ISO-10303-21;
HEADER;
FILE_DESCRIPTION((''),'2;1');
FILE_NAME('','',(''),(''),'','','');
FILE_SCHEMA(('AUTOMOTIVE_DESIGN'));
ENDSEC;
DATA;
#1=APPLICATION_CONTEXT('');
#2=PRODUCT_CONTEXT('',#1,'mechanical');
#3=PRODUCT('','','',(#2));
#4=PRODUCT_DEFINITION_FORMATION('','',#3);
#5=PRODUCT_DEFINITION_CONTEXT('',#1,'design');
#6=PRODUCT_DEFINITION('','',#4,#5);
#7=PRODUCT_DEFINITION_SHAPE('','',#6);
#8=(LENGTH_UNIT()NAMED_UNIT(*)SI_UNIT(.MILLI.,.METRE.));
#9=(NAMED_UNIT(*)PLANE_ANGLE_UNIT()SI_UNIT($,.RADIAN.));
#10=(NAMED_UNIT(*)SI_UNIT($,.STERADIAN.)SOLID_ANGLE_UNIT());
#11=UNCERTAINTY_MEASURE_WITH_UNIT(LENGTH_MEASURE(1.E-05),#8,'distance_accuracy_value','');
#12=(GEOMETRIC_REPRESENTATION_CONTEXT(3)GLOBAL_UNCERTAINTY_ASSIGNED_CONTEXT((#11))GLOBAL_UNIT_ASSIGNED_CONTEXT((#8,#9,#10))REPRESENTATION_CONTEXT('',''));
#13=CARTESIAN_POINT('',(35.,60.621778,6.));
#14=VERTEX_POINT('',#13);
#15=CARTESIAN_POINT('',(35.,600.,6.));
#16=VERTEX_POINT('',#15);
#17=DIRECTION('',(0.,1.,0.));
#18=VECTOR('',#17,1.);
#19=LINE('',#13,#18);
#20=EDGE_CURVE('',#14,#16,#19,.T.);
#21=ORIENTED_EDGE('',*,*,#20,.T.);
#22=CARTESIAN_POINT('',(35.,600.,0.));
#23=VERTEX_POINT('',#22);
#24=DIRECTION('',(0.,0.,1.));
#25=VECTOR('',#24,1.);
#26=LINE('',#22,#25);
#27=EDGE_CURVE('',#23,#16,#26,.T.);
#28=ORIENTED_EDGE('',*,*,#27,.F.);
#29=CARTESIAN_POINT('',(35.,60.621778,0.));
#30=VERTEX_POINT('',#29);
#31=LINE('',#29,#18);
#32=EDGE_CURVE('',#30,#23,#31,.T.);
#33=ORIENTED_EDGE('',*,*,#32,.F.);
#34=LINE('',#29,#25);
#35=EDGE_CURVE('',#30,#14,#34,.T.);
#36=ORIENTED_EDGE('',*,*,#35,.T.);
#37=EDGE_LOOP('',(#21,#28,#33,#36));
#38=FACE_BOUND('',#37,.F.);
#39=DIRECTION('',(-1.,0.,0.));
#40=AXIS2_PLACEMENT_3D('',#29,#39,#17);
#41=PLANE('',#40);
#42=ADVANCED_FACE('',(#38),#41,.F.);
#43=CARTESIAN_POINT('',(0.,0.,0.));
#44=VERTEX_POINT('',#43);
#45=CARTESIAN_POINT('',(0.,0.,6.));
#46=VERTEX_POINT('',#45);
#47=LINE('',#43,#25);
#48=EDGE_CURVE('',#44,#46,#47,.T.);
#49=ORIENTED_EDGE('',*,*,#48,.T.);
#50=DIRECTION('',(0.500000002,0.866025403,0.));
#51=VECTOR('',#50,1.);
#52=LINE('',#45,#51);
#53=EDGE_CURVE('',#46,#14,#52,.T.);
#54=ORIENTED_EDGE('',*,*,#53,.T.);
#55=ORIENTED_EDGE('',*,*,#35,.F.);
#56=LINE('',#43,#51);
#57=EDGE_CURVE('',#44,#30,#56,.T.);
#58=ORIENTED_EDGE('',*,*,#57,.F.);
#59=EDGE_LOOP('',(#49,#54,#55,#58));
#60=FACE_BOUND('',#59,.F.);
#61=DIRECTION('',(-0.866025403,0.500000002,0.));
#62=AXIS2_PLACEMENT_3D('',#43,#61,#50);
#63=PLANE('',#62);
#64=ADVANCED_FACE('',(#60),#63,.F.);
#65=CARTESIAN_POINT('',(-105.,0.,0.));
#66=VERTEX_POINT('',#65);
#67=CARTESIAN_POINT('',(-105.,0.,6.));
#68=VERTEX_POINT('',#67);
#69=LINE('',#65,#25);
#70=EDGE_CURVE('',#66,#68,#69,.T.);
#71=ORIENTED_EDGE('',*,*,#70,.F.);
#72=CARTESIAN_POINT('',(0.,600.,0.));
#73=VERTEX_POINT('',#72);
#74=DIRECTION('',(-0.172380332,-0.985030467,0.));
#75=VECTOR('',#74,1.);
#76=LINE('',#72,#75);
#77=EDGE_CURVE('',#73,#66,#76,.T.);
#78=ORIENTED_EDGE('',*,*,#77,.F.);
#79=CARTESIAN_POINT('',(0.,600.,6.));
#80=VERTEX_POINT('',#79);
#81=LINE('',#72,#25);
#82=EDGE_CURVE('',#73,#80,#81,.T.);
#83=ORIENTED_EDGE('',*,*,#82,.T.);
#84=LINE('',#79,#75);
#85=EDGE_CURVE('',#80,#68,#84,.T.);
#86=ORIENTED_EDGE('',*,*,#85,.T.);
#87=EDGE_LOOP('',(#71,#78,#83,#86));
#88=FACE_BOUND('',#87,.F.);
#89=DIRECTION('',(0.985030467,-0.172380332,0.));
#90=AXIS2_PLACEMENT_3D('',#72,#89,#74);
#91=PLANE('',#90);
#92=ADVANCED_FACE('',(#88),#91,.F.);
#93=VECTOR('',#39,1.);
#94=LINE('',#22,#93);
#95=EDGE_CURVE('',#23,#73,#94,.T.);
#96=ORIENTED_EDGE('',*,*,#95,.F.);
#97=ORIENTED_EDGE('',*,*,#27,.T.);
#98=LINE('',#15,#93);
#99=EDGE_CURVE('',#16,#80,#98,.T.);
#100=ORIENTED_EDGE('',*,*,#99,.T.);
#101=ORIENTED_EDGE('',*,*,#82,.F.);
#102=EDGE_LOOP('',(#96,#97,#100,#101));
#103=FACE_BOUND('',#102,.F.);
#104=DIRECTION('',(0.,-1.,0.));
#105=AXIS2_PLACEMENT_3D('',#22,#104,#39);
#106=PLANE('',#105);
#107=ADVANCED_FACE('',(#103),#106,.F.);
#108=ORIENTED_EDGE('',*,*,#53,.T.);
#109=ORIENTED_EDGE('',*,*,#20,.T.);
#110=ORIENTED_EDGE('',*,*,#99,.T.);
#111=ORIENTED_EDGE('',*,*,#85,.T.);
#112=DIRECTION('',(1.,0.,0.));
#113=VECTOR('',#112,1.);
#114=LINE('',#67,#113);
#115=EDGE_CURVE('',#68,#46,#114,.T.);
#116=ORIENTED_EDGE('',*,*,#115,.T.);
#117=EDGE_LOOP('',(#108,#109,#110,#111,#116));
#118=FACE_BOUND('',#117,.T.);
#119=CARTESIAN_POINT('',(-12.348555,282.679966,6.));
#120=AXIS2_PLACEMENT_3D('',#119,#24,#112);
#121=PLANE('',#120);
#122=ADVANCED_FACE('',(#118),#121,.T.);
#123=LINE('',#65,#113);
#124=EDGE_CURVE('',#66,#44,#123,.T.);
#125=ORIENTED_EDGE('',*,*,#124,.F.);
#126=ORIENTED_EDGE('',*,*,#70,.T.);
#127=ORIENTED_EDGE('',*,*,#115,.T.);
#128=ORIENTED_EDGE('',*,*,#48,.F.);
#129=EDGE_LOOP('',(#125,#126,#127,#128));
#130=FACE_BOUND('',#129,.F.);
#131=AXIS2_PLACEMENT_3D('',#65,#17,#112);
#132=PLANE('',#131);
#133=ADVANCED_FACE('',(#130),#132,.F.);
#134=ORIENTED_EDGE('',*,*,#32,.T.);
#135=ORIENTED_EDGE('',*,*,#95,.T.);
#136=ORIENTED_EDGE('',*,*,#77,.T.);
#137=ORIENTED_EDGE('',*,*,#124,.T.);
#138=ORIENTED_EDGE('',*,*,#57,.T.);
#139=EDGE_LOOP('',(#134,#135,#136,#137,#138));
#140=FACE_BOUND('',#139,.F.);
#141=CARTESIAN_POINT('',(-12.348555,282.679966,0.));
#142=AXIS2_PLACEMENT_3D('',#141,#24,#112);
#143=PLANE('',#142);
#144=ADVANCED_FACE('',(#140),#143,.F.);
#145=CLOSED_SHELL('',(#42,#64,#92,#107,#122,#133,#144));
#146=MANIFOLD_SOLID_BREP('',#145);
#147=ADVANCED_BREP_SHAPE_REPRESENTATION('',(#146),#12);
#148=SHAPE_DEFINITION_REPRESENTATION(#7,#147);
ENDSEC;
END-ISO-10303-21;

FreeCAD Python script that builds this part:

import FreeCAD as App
import Part
import Sketcher
Q = App.Units.Quantity

doc = App.newDocument("Part")
params = doc.addObject("Spreadsheet::Sheet", "Params")
for row, (alias, value) in enumerate([
    ("sketch1_width", "35 mm"),
    ("sketch1_width2", "105 mm"),
    ("pad1_length", "6 mm"),
], start=1):
    params.set(f"A{row}", alias)
    params.set(f"B{row}", "=" + value)
    params.setAlias(f"B{row}", alias)

body = doc.addObject("PartDesign::Body", "Body")

sketch1 = body.newObject("Sketcher::SketchObject", "Sketch")
sketch1.AttachmentSupport = (doc.getObject("XY_Plane"), [""])
sketch1.MapMode = "FlatFace"
sketch1.addGeometry([
    Part.LineSegment(App.Vector(0, 0, 0), App.Vector(35, 60.621778, 0)),
    Part.LineSegment(App.Vector(35, 60.621778, 0), App.Vector(35, 600, 0)),
    Part.LineSegment(App.Vector(35, 600, 0), App.Vector(0, 600, 0)),
    Part.LineSegment(App.Vector(0, 600, 0), App.Vector(-105, 0, 0)),
    Part.LineSegment(App.Vector(-105, 0, 0), App.Vector(0, 0, 0)),
], False)
sketch1.addConstraint([
    Sketcher.Constraint("Coincident", 0, 2, 1, 1),
    Sketcher.Constraint("Coincident", 1, 2, 2, 1),
    Sketcher.Constraint("Coincident", 2, 2, 3, 1),
    Sketcher.Constraint("Coincident", 3, 2, 4, 1),
    Sketcher.Constraint("Coincident", 4, 2, 0, 1),
    Sketcher.Constraint("Vertical", 1),
    Sketcher.Constraint("Horizontal", 2),
    Sketcher.Constraint("Horizontal", 4),
    Sketcher.Constraint("Coincident", 4, 2, -1, 1),
    Sketcher.Constraint("PointOnObject", 2, 2, -2),
    Sketcher.Constraint("DistanceX", 2, 2, 2, 1, Q("35 mm")),
    Sketcher.Constraint("DistanceX", 4, 1, 4, 2, Q("105 mm")),
    Sketcher.Constraint("Angle", 0, Q("60 deg")),
    Sketcher.Constraint("DistanceY", -1, 1, 1, 2, Q("600 mm")),
])
sketch1.setExpression("Constraints[10]", "Params.sketch1_width")
sketch1.setExpression("Constraints[11]", "Params.sketch1_width2")
pad1 = body.newObject("PartDesign::Pad", "Pad")
pad1.Profile = sketch1
pad1.setExpression("Length", "Params.pad1_length")

doc.recompute()
